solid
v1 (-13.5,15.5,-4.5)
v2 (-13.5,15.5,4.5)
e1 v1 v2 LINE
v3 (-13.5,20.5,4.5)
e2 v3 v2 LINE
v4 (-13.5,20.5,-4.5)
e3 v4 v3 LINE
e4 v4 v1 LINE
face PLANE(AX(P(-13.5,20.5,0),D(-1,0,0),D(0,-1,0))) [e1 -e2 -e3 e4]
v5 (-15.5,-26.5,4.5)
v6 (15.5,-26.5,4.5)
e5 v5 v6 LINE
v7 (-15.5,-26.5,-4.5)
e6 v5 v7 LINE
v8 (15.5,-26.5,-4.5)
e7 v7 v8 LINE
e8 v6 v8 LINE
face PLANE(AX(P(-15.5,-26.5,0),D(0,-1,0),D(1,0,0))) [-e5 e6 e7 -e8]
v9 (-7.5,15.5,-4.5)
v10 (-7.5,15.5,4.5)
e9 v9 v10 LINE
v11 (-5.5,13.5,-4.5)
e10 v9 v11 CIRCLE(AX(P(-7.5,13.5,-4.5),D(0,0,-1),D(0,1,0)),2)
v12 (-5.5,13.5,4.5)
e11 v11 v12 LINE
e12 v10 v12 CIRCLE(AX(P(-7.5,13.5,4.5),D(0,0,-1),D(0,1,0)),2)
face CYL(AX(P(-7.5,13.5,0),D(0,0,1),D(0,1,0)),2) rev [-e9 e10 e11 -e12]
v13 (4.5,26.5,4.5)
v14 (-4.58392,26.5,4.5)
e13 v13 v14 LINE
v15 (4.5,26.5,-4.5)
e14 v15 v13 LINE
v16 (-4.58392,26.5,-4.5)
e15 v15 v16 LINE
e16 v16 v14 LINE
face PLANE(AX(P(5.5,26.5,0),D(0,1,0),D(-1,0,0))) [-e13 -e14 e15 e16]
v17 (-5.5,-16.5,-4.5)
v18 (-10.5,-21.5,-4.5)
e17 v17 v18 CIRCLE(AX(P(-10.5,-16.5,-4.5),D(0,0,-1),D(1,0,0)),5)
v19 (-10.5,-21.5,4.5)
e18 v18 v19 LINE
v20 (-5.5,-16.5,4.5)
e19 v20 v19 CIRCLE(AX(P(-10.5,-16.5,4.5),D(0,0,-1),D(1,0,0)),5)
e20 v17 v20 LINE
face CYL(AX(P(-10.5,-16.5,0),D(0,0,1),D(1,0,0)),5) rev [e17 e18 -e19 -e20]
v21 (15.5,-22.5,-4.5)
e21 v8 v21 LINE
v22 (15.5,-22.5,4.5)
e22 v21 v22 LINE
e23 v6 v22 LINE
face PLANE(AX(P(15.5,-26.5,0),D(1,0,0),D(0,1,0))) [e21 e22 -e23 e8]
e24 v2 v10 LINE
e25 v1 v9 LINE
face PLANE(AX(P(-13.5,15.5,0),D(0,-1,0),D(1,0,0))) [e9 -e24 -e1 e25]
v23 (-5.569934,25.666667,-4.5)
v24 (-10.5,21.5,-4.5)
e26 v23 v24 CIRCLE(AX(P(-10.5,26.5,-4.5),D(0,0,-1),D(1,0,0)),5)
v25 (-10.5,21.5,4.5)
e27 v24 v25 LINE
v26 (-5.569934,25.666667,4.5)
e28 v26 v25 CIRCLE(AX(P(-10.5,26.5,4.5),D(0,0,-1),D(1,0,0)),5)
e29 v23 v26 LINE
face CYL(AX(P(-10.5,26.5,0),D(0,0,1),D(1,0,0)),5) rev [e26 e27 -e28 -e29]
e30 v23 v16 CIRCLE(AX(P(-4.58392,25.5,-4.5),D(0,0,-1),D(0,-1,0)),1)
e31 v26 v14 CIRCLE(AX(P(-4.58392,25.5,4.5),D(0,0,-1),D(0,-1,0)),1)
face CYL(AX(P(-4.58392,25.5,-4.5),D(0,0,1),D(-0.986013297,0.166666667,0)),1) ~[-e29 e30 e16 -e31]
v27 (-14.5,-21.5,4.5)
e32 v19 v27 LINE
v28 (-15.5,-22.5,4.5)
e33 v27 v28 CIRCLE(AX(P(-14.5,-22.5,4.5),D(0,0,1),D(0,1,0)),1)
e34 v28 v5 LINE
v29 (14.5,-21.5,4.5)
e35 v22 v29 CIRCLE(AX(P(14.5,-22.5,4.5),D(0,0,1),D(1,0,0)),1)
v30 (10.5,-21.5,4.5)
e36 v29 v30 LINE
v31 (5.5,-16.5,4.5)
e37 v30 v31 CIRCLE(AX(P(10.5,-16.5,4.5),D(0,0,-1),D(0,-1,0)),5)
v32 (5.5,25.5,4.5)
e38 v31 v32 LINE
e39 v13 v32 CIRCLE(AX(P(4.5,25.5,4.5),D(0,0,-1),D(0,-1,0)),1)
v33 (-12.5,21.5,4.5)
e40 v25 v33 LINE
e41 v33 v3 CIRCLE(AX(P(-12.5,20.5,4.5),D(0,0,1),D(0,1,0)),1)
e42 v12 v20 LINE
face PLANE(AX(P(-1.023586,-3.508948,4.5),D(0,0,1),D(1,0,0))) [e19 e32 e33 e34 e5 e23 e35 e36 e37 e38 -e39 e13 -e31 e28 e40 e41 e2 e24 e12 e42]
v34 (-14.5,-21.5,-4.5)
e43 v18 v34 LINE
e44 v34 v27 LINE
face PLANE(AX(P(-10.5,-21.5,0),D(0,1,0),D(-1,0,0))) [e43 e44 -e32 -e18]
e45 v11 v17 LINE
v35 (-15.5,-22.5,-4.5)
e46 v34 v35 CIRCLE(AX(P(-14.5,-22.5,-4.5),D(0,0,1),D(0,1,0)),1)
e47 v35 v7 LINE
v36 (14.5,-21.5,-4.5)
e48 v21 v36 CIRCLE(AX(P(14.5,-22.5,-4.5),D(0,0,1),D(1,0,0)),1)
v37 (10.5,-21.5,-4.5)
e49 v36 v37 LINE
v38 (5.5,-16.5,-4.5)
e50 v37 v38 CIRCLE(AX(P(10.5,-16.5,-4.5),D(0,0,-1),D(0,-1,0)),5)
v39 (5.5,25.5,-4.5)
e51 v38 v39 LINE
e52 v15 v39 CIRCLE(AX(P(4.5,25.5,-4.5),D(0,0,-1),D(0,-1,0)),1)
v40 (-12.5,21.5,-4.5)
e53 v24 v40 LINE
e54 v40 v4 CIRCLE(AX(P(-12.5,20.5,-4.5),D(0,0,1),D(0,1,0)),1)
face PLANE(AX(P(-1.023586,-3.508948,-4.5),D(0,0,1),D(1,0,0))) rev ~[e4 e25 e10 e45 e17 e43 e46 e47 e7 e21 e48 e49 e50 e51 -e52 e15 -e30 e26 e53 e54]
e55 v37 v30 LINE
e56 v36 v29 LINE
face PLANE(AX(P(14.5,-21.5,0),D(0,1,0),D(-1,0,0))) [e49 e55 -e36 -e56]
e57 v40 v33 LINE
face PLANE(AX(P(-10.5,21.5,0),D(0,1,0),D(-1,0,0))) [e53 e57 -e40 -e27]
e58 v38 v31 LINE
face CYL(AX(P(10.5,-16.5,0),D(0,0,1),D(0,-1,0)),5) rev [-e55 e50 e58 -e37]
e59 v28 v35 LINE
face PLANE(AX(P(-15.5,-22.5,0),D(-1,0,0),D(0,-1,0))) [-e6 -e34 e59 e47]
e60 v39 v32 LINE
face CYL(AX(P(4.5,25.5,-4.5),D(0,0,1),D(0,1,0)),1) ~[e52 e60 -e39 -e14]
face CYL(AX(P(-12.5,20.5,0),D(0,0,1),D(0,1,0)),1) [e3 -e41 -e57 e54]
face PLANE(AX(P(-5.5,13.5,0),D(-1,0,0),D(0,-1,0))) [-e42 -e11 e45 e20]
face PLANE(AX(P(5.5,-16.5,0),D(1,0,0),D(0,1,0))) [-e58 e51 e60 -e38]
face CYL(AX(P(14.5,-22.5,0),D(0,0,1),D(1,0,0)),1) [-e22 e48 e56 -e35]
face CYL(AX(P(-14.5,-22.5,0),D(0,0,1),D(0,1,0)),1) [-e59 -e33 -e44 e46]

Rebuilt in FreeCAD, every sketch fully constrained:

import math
import FreeCAD as App
import Part
import Sketcher


def edges_at(feature, points):
    """Names of the edges that pass closest to the given points."""
    edges = feature.Shape.Edges
    near = lambda p: min(range(len(edges)), key=lambda i: edges[i].distToShape(Part.Vertex(*p))[0])
    return sorted({f"Edge{near(p) + 1}" for p in points})

doc = App.newDocument("Part")
body = doc.addObject("PartDesign::Body", "Body")

sketch1 = body.newObject("Sketcher::SketchObject", "Sketch")
sketch1.AttachmentSupport = (doc.getObject("XY_Plane"), [""])
sketch1.MapMode = "FlatFace"
sketch1.addGeometry([
    Part.LineSegment(App.Vector(15.5, -26.5, 0), App.Vector(15.5, -22.5, 0)),
    Part.ArcOfCircle(Part.Circle(App.Vector(14.5, -22.5, 0), App.Vector(0, 0, 1), 1), math.radians(0), math.radians(90)),
    Part.LineSegment(App.Vector(14.5, -21.5, 0), App.Vector(10.5, -21.5, 0)),
    Part.ArcOfCircle(Part.Circle(App.Vector(10.5, -16.5, 0), App.Vector(0, 0, 1), 5), math.radians(180), math.radians(270)),
    Part.LineSegment(App.Vector(5.5, -16.5, 0), App.Vector(5.5, 26.5, 0)),
    Part.LineSegment(App.Vector(5.5, 26.5, 0), App.Vector(-5.5, 26.5, 0)),
    Part.ArcOfCircle(Part.Circle(App.Vector(-10.5, 26.5, 0), App.Vector(0, 0, 1), 5), math.radians(-90), math.radians(0)),
    Part.LineSegment(App.Vector(-10.5, 21.5, 0), App.Vector(-12.5, 21.5, 0)),
    Part.ArcOfCircle(Part.Circle(App.Vector(-12.5, 20.5, 0), App.Vector(0, 0, 1), 1), math.radians(90), math.radians(180)),
    Part.LineSegment(App.Vector(-13.5, 20.5, 0), App.Vector(-13.5, 15.5, 0)),
    Part.LineSegment(App.Vector(-13.5, 15.5, 0), App.Vector(-7.5, 15.5, 0)),
    Part.ArcOfCircle(Part.Circle(App.Vector(-7.5, 13.5, 0), App.Vector(0, 0, 1), 2), math.radians(0), math.radians(90)),
    Part.LineSegment(App.Vector(-5.5, 13.5, 0), App.Vector(-5.5, -16.5, 0)),
    Part.ArcOfCircle(Part.Circle(App.Vector(-10.5, -16.5, 0), App.Vector(0, 0, 1), 5), math.radians(-90), math.radians(0)),
    Part.LineSegment(App.Vector(-10.5, -21.5, 0), App.Vector(-14.5, -21.5, 0)),
    Part.ArcOfCircle(Part.Circle(App.Vector(-14.5, -22.5, 0), App.Vector(0, 0, 1), 1), math.radians(90), math.radians(180)),
    Part.LineSegment(App.Vector(-15.5, -22.5, 0), App.Vector(-15.5, -26.5, 0)),
    Part.LineSegment(App.Vector(-15.5, -26.5, 0), App.Vector(15.5, -26.5, 0)),
], False)
sketch1.addConstraint([
    Sketcher.Constraint("Tangent", 0, 2, 1, 1),
    Sketcher.Constraint("Tangent", 1, 2, 2, 1),
    Sketcher.Constraint("Tangent", 2, 2, 3, 2),
    Sketcher.Constraint("Tangent", 3, 1, 4, 1),
    Sketcher.Constraint("Coincident", 4, 2, 5, 1),
    Sketcher.Constraint("Coincident", 5, 2, 6, 2),
    Sketcher.Constraint("Tangent", 6, 1, 7, 1),
    Sketcher.Constraint("Tangent", 7, 2, 8, 1),
    Sketcher.Constraint("Tangent", 8, 2, 9, 1),
    Sketcher.Constraint("Coincident", 9, 2, 10, 1),
    Sketcher.Constraint("Tangent", 10, 2, 11, 2),
    Sketcher.Constraint("Tangent", 11, 1, 12, 1),
    Sketcher.Constraint("Tangent", 12, 2, 13, 2),
    Sketcher.Constraint("Tangent", 13, 1, 14, 1),
    Sketcher.Constraint("Tangent", 14, 2, 15, 1),
    Sketcher.Constraint("Tangent", 15, 2, 16, 1),
    Sketcher.Constraint("Coincident", 16, 2, 17, 1),
    Sketcher.Constraint("Coincident", 17, 2, 0, 1),
    Sketcher.Constraint("Vertical", 0),
    Sketcher.Constraint("Horizontal", 2),
    Sketcher.Constraint("Vertical", 4),
    Sketcher.Constraint("Horizontal", 5),
    Sketcher.Constraint("Horizontal", 7),
    Sketcher.Constraint("Vertical", 9),
    Sketcher.Constraint("Horizontal", 10),
    Sketcher.Constraint("Vertical", 12),
    Sketcher.Constraint("Horizontal", 14),
    Sketcher.Constraint("Vertical", 16),
    Sketcher.Constraint("Horizontal", 17),
    Sketcher.Constraint("Equal", 3, 6),
    Sketcher.Constraint("Equal", 1, 8),
    Sketcher.Constraint("Equal", 6, 13),
    Sketcher.Constraint("Equal", 8, 15),
    Sketcher.Constraint("Symmetric", 2, 2, 6, 1, -1, 1),
    Sketcher.Constraint("Symmetric", 3, 3, 13, 3, -2),
    Sketcher.Constraint("Horizontal", 6, 3, 4, 2),
    Sketcher.Constraint("Equal", 2, 14),
    Sketcher.Constraint("Equal", 14, 0),
    Sketcher.Constraint("Radius", 1, 1.0),
    Sketcher.Constraint("Radius", 3, 5.0),
    Sketcher.Constraint("Radius", 11, 2.0),
    Sketcher.Constraint("DistanceX", 2, 2, 2, 1, 4.0),
    Sketcher.Constraint("DistanceX", 5, 2, 5, 1, 11.0),
    Sketcher.Constraint("DistanceX", 7, 2, 7, 1, 2.0),
    Sketcher.Constraint("DistanceY", 4, 1, 4, 2, 43.0),
    Sketcher.Constraint("DistanceY", 9, 2, 9, 1, 5.0),
])
pad1 = body.newObject("PartDesign::Pad", "Pad")
pad1.Profile = sketch1
pad1.Length = 9
pad1.Midplane = True
doc.recompute()

fillet = body.newObject("PartDesign::Fillet", "Fillet")
fillet.Base = (pad1, edges_at(pad1, [(5.5, 26.5, 0), (-5.5, 26.5, 0)]))
fillet.Radius = 1

doc.recompute()
